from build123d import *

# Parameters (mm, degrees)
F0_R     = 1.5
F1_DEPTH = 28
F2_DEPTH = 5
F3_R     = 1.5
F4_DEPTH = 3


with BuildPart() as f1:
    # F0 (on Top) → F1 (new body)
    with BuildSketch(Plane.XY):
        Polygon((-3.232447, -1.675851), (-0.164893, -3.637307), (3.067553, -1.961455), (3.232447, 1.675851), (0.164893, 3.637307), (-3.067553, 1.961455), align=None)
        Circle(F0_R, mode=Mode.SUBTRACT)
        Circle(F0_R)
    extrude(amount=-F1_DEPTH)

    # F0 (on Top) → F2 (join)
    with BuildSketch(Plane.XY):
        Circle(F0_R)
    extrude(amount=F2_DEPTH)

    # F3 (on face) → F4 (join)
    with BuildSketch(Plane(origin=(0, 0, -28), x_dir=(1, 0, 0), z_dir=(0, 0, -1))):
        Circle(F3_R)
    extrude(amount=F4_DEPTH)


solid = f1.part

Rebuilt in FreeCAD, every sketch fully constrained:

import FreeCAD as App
import Part
import Sketcher

V = App.Vector
Q = App.Units.Quantity


def add_polygon(sketch, points):
    """Adds a closed chain of lines whose ends are joined by coincident constraints."""
    first, n = sketch.GeometryCount, len(points)
    for a, b in zip(points, points[1:] + points[:1]):
        sketch.addGeometry(Part.LineSegment(App.Vector(*a, 0), App.Vector(*b, 0)), False)
    for i in range(n):
        sketch.addConstraint(Sketcher.Constraint("Coincident", first + i, 2, first + (i + 1) % n, 1))

doc = App.newDocument("Part")
body = doc.addObject("PartDesign::Body", "Body")

# Sketch on XY plane
sketch1 = body.newObject("Sketcher::SketchObject", "Sketch")
sketch1.AttachmentSupport = (doc.getObject("XY_Plane"), [""])
sketch1.MapMode = "FlatFace"
add_polygon(sketch1, [(-3.232447, -1.675851), (-0.164893, -3.637307), (3.067553, -1.961455), (3.232447, 1.675851), (0.164893, 3.637307), (-3.067553, 1.961455)])  # lines 0-5
sketch1.addConstraint([
    Sketcher.Constraint("DistanceX", 4, 2, 2, 2, Q("6.3 mm")),
    Sketcher.Constraint("DistanceX", 5, 2, 1, 2, Q("6.3 mm")),
    Sketcher.Constraint("DistanceY", 5, 2, 2, 2, Q("3.351702 mm")),
    Sketcher.Constraint("Distance", 2, Q("3.641042 mm")),
    Sketcher.Constraint("Distance", 5, Q("3.641042 mm")),
    Sketcher.Constraint("DistanceY", -1, 1, 2, 2, Q("1.675851 mm")),
    Sketcher.Constraint("DistanceY", 0, 2, 1, 2, Q("1.675852 mm")),
    Sketcher.Constraint("DistanceX", 0, 2, 2, 2, Q("3.39734 mm")),
    Sketcher.Constraint("DistanceX", 3, 2, 1, 2, Q("2.90266 mm")),
    Sketcher.Constraint("DistanceY", 1, 2, 3, 2, Q("5.598762 mm")),
    Sketcher.Constraint("DistanceY", 4, 2, 3, 2, Q("1.675852 mm")),
    Sketcher.Constraint("DistanceX", 0, 2, -1, 1, Q("0.164893 mm")),
])
pad1 = body.newObject("PartDesign::Pad", "Pad")
pad1.Profile = sketch1
pad1.Length = 28
pad1.Reversed = True

# Sketch on XY plane
sketch2 = body.newObject("Sketcher::SketchObject", "Sketch001")
sketch2.AttachmentSupport = (doc.getObject("XY_Plane"), [""])
sketch2.MapMode = "FlatFace"
sketch2.addGeometry(Part.Circle(V(0, 0, 0), V(0, 0, 1), 1.5), False)
sketch2.addConstraint([
    Sketcher.Constraint("Coincident", 0, 3, -1, 1),
    Sketcher.Constraint("Diameter", 0, Q("3 mm")),
])
pad2 = body.newObject("PartDesign::Pad", "Pad001")
pad2.Profile = sketch2
pad2.Length = 5

# Sketch on XY plane
sketch3 = body.newObject("Sketcher::SketchObject", "Sketch002")
sketch3.AttachmentSupport = (doc.getObject("XY_Plane"), [""])
sketch3.MapMode = "FlatFace"
sketch3.AttachmentOffset = App.Placement(V(0, 0, -28), App.Rotation())
sketch3.addGeometry(Part.Circle(V(0, 0, 0), V(0, 0, 1), 1.5), False)
sketch3.addConstraint([
    Sketcher.Constraint("Coincident", 0, 3, -1, 1),
    Sketcher.Constraint("Diameter", 0, Q("3 mm")),
])
pad3 = body.newObject("PartDesign::Pad", "Pad002")
pad3.Profile = sketch3
pad3.Length = 3
pad3.Reversed = True

doc.recompute()
